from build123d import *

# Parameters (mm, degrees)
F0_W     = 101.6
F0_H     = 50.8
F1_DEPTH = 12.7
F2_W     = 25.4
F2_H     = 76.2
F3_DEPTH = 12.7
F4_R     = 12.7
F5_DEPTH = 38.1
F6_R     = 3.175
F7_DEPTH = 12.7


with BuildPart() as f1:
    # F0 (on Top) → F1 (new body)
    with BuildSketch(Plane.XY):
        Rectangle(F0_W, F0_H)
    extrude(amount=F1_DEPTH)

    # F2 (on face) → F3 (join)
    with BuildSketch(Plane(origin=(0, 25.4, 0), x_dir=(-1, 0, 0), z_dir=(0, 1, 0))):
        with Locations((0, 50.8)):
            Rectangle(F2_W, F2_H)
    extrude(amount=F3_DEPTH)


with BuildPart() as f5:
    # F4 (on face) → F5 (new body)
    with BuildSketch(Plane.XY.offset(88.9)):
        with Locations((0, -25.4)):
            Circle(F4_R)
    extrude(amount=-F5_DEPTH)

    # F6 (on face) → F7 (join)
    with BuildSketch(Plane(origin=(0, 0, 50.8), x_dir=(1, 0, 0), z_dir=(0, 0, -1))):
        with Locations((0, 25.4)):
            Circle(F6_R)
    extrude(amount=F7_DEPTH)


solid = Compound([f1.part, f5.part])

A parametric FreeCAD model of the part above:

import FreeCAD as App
import Part
import Sketcher
from FreeCAD import Vector
Q = App.Units.Quantity


def add_polygon(sketch, points):
    """Adds a closed chain of lines whose ends are joined by coincident constraints."""
    first, n = sketch.GeometryCount, len(points)
    for a, b in zip(points, points[1:] + points[:1]):
        sketch.addGeometry(Part.LineSegment(App.Vector(*a, 0), App.Vector(*b, 0)), False)
    for i in range(n):
        sketch.addConstraint(Sketcher.Constraint("Coincident", first + i, 2, first + (i + 1) % n, 1))

doc = App.newDocument("Part")
body = doc.addObject("PartDesign::Body", "Body")
body.AllowCompound = True

sketch1 = body.newObject("Sketcher::SketchObject", "Sketch")
sketch1.AttachmentSupport = (doc.getObject("XY_Plane"), [""])
sketch1.MapMode = "FlatFace"
add_polygon(sketch1, [(-51, 25), (-51, -25), (51, -25), (51, 25)])
sketch1.addConstraint([
    Sketcher.Constraint("Vertical", 0),
    Sketcher.Constraint("Horizontal", 1),
    Sketcher.Constraint("Vertical", 2),
    Sketcher.Constraint("Horizontal", 3),
    Sketcher.Constraint("Symmetric", 0, 2, 2, 2, -1, 1),
    Sketcher.Constraint("DistanceX", 1, 1, 1, 2, Q("4 in")),
    Sketcher.Constraint("DistanceY", 0, 2, 0, 1, Q("2 in")),
])
pad1 = body.newObject("PartDesign::Pad", "Pad")
pad1.Profile = sketch1
pad1.Length = Q("0.5 in")

sketch2 = body.newObject("Sketcher::SketchObject", "Sketch001")
sketch2.AttachmentSupport = (doc.getObject("XZ_Plane"), [""])
sketch2.MapMode = "FlatFace"
sketch2.AttachmentOffset = App.Placement(Vector(0, 0, -1 * 25.4), App.Rotation())
add_polygon(sketch2, [(13, 89), (13, 13), (-13, 13), (-13, 89)])
sketch2.addConstraint([
    Sketcher.Constraint("Vertical", 0),
    Sketcher.Constraint("Horizontal", 1),
    Sketcher.Constraint("Vertical", 2),
    Sketcher.Constraint("Horizontal", 3),
    Sketcher.Constraint("DistanceX", 1, 2, 1, 1, Q("1 in")),
    Sketcher.Constraint("DistanceY", 0, 2, 0, 1, Q("3 in")),
    Sketcher.Constraint("DistanceX", -1, 1, 0, 2, Q("0.5 in")),
    Sketcher.Constraint("DistanceY", -1, 1, 0, 2, Q("0.5 in")),
])
pad2 = body.newObject("PartDesign::Pad", "Pad001")
pad2.Profile = sketch2
pad2.Length = Q("0.5 in")
pad2.Reversed = True
body2 = doc.addObject("PartDesign::Body", "Body001")

sketch3 = body2.newObject("Sketcher::SketchObject", "Sketch002")
sketch3.AttachmentSupport = (doc.getObject("XY_Plane001"), [""])
sketch3.MapMode = "FlatFace"
sketch3.AttachmentOffset = App.Placement(Vector(0, 0, 3.5 * 25.4), App.Rotation())
sketch3.addGeometry(Part.Circle(Vector(0, -25, 0), Vector(0, 0, 1), 13), False)
sketch3.addConstraint([
    Sketcher.Constraint("PointOnObject", 0, 3, -2),
    Sketcher.Constraint("Diameter", 0, Q("1 in")),
    Sketcher.Constraint("DistanceY", 0, 3, -1, 1, Q("1 in")),
])
pad3 = body2.newObject("PartDesign::Pad", "Pad002")
pad3.Profile = sketch3
pad3.Length = Q("1.5 in")
pad3.Reversed = True

sketch4 = body2.newObject("Sketcher::SketchObject", "Sketch003")
sketch4.AttachmentSupport = (doc.getObject("XY_Plane001"), [""])
sketch4.MapMode = "FlatFace"
sketch4.AttachmentOffset = App.Placement(Vector(0, 0, 2 * 25.4), App.Rotation())
sketch4.addGeometry(Part.Circle(Vector(0, -25.4, 0), Vector(0, 0, 1), 3.2), False)
sketch4.addConstraint([
    Sketcher.Constraint("PointOnObject", 0, 3, -2),
    Sketcher.Constraint("Diameter", 0, Q("0.25 in")),
    Sketcher.Constraint("DistanceY", 0, 3, -1, 1, Q("1 in")),
])
pad4 = body2.newObject("PartDesign::Pad", "Pad003")
pad4.Profile = sketch4
pad4.Length = Q("0.5 in")
pad4.Reversed = True

doc.recompute()
